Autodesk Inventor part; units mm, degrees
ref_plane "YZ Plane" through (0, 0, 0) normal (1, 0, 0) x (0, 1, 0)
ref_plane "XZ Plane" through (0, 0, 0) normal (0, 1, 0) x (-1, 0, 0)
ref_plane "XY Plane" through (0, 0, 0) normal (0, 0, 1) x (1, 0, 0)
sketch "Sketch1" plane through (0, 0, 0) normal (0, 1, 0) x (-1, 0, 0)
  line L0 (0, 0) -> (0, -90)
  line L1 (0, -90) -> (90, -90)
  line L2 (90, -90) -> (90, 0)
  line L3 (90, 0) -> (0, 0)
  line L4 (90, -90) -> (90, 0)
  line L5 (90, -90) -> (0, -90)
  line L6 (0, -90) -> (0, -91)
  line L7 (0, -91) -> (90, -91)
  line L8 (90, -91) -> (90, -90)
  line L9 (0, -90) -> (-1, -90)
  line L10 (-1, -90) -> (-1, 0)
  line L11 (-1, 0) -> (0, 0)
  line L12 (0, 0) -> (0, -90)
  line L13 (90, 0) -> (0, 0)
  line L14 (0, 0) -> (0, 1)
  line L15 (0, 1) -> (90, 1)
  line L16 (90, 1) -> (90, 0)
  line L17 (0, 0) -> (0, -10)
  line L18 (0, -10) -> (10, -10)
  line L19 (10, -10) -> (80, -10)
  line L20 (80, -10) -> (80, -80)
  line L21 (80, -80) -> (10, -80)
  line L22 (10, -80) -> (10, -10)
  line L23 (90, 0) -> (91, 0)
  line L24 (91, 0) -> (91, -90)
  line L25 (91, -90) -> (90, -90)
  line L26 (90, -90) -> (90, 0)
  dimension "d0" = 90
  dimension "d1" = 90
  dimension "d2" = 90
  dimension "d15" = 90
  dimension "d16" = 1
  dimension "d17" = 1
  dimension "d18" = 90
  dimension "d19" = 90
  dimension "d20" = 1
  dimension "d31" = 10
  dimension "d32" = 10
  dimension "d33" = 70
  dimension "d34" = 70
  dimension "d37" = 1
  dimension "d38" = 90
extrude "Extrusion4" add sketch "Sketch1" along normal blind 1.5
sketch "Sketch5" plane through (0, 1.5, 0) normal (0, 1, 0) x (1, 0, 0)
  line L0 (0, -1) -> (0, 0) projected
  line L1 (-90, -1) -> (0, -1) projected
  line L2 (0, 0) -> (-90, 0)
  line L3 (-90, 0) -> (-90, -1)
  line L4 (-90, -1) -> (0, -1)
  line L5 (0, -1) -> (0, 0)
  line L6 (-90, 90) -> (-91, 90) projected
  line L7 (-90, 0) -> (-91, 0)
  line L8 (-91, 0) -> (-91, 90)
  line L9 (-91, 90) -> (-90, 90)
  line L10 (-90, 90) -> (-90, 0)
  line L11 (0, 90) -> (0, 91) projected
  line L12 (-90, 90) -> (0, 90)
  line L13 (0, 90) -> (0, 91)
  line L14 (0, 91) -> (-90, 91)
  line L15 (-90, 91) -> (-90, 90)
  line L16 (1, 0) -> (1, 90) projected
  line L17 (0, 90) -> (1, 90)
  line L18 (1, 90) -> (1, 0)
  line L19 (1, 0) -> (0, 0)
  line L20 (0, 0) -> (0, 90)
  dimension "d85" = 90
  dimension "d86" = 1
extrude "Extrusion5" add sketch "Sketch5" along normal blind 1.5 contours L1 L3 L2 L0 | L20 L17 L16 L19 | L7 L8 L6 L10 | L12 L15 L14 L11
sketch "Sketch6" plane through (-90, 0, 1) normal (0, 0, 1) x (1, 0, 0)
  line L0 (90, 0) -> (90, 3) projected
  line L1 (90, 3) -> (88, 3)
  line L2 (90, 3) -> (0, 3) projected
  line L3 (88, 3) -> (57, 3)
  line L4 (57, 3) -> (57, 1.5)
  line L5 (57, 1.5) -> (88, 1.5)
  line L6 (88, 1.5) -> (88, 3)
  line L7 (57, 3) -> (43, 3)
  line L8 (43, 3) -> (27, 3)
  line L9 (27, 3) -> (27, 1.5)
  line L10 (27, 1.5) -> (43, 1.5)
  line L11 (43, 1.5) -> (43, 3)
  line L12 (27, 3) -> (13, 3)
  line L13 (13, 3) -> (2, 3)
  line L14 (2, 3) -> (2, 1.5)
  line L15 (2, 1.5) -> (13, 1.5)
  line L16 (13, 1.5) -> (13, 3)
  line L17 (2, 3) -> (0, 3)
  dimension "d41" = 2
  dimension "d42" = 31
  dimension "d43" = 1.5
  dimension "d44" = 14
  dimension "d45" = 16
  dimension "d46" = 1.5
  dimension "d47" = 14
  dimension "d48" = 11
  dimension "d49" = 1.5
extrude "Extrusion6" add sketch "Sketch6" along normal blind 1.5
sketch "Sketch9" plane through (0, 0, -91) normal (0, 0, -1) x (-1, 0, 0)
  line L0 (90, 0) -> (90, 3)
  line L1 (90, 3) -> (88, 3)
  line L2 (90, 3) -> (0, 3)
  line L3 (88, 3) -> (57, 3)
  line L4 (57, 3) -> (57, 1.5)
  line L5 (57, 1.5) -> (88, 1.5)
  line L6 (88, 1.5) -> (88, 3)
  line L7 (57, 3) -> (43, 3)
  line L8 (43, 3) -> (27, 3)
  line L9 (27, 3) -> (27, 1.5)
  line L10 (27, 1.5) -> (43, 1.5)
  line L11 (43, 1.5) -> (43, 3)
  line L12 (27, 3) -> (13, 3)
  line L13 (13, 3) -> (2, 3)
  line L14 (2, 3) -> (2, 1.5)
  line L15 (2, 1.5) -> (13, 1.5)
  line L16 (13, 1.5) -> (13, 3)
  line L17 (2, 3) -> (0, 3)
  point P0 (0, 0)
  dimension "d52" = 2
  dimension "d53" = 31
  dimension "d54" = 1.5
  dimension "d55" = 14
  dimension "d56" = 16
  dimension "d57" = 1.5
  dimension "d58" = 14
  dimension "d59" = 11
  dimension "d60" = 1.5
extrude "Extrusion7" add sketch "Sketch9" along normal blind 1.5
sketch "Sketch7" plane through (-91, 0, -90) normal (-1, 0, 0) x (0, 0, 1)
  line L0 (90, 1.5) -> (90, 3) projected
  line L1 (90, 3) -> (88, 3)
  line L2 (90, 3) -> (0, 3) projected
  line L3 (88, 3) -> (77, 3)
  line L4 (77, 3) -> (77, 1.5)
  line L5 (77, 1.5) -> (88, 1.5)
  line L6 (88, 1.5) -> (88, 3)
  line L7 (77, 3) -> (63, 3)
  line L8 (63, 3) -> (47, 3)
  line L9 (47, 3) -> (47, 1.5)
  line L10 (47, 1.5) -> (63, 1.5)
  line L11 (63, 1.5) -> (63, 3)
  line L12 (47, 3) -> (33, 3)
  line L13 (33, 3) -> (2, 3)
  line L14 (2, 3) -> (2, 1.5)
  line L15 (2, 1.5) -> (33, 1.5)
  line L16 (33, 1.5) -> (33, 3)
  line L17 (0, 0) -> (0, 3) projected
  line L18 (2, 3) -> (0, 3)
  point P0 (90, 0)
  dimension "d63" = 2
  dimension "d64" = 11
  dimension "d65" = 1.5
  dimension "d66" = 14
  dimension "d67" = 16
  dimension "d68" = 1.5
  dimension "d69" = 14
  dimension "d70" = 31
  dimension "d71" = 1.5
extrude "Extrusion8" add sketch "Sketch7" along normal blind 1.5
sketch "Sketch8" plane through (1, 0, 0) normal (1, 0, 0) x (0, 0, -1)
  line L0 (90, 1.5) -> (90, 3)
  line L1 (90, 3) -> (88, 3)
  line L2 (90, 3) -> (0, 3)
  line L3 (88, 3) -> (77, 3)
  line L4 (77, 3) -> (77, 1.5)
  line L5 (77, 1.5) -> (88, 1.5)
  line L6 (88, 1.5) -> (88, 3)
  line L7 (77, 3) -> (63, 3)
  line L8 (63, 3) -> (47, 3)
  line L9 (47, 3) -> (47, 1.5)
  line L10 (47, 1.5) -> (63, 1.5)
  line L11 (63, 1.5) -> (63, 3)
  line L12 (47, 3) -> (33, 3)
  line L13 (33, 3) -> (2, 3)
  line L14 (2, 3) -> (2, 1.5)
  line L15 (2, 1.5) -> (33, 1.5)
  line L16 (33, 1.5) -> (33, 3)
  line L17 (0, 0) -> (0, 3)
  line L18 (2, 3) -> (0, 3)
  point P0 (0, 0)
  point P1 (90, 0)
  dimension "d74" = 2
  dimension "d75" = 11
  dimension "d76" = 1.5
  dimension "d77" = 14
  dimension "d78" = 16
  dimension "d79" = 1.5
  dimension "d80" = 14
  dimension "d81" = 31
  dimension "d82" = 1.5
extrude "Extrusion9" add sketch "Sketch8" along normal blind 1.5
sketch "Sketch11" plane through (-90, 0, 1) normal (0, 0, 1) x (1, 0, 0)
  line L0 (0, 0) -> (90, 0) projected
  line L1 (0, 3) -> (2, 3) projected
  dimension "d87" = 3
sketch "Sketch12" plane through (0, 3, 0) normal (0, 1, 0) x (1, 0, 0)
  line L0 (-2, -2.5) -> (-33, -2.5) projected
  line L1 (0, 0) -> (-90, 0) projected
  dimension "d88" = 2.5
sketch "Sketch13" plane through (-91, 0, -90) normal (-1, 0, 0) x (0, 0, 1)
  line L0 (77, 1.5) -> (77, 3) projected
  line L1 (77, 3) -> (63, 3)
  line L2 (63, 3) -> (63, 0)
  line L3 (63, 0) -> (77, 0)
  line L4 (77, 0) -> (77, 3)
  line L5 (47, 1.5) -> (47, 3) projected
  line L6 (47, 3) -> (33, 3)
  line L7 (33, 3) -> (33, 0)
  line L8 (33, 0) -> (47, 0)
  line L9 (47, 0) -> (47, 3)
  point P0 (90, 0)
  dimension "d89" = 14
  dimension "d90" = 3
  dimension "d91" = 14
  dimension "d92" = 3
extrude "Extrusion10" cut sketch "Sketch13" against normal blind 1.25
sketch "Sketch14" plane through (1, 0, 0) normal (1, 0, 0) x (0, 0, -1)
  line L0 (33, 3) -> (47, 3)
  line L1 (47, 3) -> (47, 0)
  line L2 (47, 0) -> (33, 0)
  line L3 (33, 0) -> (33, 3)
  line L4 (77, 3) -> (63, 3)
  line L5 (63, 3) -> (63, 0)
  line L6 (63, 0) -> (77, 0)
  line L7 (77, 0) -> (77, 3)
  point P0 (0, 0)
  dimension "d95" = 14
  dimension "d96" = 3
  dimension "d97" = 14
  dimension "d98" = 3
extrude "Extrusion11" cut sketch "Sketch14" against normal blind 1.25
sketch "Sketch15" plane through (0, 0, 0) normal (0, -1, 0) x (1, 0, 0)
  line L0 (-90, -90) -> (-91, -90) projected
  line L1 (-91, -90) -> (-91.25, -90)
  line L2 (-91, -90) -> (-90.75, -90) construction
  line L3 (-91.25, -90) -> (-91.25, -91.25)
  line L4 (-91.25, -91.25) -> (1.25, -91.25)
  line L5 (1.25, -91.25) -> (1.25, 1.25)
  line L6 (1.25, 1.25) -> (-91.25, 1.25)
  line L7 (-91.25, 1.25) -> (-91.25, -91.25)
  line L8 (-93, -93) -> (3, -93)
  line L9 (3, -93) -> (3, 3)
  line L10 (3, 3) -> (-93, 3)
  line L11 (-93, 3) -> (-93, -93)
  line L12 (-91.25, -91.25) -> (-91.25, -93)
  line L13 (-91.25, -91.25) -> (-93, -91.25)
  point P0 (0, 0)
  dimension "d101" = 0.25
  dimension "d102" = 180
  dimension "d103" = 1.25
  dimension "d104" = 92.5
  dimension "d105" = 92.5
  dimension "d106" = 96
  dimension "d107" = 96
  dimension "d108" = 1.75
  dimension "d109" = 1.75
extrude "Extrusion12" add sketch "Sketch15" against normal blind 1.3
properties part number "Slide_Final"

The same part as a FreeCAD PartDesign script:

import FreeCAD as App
import Part
import Sketcher

doc = App.newDocument("Part")
params = doc.addObject("Spreadsheet::Sheet", "Params")
for row, (alias, value) in enumerate([
    ("sketch1_width", "1 mm"),
    ("sketch1_width2", "90 mm"),
    ("sketch1_width3", "70 mm"),
    ("pad1_length", "1.5 mm"),
    ("sketch2_width", "90 mm"),
    ("sketch2_width2", "1 mm"),
    ("pad2_length", "1.5 mm"),
    ("sketch3_width", "31 mm"),
    ("sketch3_width2", "11 mm"),
    ("sketch3_width3", "16 mm"),
    ("sketch3_height", "1.5 mm"),
    ("pad3_length", "1.5 mm"),
    ("sketch4_width", "31 mm"),
    ("sketch4_width2", "11 mm"),
    ("sketch4_width3", "16 mm"),
    ("sketch4_height", "1.5 mm"),
    ("pad4_length", "1.5 mm"),
    ("sketch5_height", "11 mm"),
    ("sketch5_height2", "31 mm"),
    ("sketch5_height3", "16 mm"),
    ("sketch5_width", "1.5 mm"),
    ("pad5_length", "1.5 mm"),
    ("sketch6_height", "11 mm"),
    ("sketch6_height2", "31 mm"),
    ("sketch6_height3", "16 mm"),
    ("sketch6_width", "1.5 mm"),
    ("pad6_length", "1.5 mm"),
    ("sketch7_width", "3 mm"),
    ("sketch7_height", "14 mm"),
    ("pocket1_length", "1.25 mm"),
    ("sketch8_width", "3 mm"),
    ("sketch8_height", "14 mm"),
    ("pocket2_length", "1.25 mm"),
    ("sketch9_width", "96 mm"),
    ("sketch9_width2", "92.5 mm"),
    ("pad7_length", "1.3 mm"),
], start=1):
    params.set(f"A{row}", alias)
    params.set(f"B{row}", "=" + value)
    params.setAlias(f"B{row}", alias)

body = doc.addObject("PartDesign::Body", "Body")
body.AllowCompound = True

# Sketch on XZ plane
sketch1 = body.newObject("Sketcher::SketchObject", "Sketch")
sketch1.AttachmentSupport = (doc.getObject("XZ_Plane"), [""])
sketch1.MapMode = "FlatFace"
sketch1.addGeometry(Part.LineSegment(App.Vector(0, 1, 0), App.Vector(0, 0, 0)), False)
sketch1.addGeometry(Part.LineSegment(App.Vector(0, 0, 0), App.Vector(1, 0, 0)), False)
sketch1.addGeometry(Part.LineSegment(App.Vector(1, 0, 0), App.Vector(1, -90, 0)), False)
sketch1.addGeometry(Part.LineSegment(App.Vector(1, -90, 0), App.Vector(0, -90, 0)), False)
sketch1.addGeometry(Part.LineSegment(App.Vector(0, -90, 0), App.Vector(0, -91, 0)), False)
sketch1.addGeometry(Part.LineSegment(App.Vector(0, -91, 0), App.Vector(-90, -91, 0)), False)
sketch1.addGeometry(Part.LineSegment(App.Vector(-90, -91, 0), App.Vector(-90, -90, 0)), False)
sketch1.addGeometry(Part.LineSegment(App.Vector(-90, -90, 0), App.Vector(-91, -90, 0)), False)
sketch1.addGeometry(Part.LineSegment(App.Vector(-91, -90, 0), App.Vector(-91, 0, 0)), False)
sketch1.addGeometry(Part.LineSegment(App.Vector(-91, 0, 0), App.Vector(-90, 0, 0)), False)
sketch1.addGeometry(Part.LineSegment(App.Vector(-90, 0, 0), App.Vector(-90, 1, 0)), False)
sketch1.addGeometry(Part.LineSegment(App.Vector(-90, 1, 0), App.Vector(0, 1, 0)), False)
sketch1.addGeometry(Part.LineSegment(App.Vector(-10, -80, 0), App.Vector(-10, -10, 0)), False)
sketch1.addGeometry(Part.LineSegment(App.Vector(-10, -10, 0), App.Vector(-80, -10, 0)), False)
sketch1.addGeometry(Part.LineSegment(App.Vector(-80, -10, 0), App.Vector(-80, -80, 0)), False)
sketch1.addGeometry(Part.LineSegment(App.Vector(-80, -80, 0), App.Vector(-10, -80, 0)), False)
sketch1.addConstraint(Sketcher.Constraint("Coincident", 0, 2, 1, 1))
sketch1.addConstraint(Sketcher.Constraint("Coincident", 1, 2, 2, 1))
sketch1.addConstraint(Sketcher.Constraint("Coincident", 2, 2, 3, 1))
sketch1.addConstraint(Sketcher.Constraint("Coincident", 3, 2, 4, 1))
sketch1.addConstraint(Sketcher.Constraint("Coincident", 4, 2, 5, 1))
sketch1.addConstraint(Sketcher.Constraint("Coincident", 5, 2, 6, 1))
sketch1.addConstraint(Sketcher.Constraint("Coincident", 6, 2, 7, 1))
sketch1.addConstraint(Sketcher.Constraint("Coincident", 7, 2, 8, 1))
sketch1.addConstraint(Sketcher.Constraint("Coincident", 8, 2, 9, 1))
sketch1.addConstraint(Sketcher.Constraint("Coincident", 9, 2, 10, 1))
sketch1.addConstraint(Sketcher.Constraint("Coincident", 10, 2, 11, 1))
sketch1.addConstraint(Sketcher.Constraint("Coincident", 11, 2, 0, 1))
sketch1.addConstraint(Sketcher.Constraint("Coincident", 12, 2, 13, 1))
sketch1.addConstraint(Sketcher.Constraint("Coincident", 13, 2, 14, 1))
sketch1.addConstraint(Sketcher.Constraint("Coincident", 14, 2, 15, 1))
sketch1.addConstraint(Sketcher.Constraint("Coincident", 15, 2, 12, 1))
sketch1.addConstraint(Sketcher.Constraint("Vertical", 0))
sketch1.addConstraint(Sketcher.Constraint("Horizontal", 1))
sketch1.addConstraint(Sketcher.Constraint("Vertical", 2))
sketch1.addConstraint(Sketcher.Constraint("Horizontal", 3))
sketch1.addConstraint(Sketcher.Constraint("Vertical", 4))
sketch1.addConstraint(Sketcher.Constraint("Horizontal", 5))
sketch1.addConstraint(Sketcher.Constraint("Vertical", 6))
sketch1.addConstraint(Sketcher.Constraint("Horizontal", 7))
sketch1.addConstraint(Sketcher.Constraint("Vertical", 8))
sketch1.addConstraint(Sketcher.Constraint("Horizontal", 9))
sketch1.addConstraint(Sketcher.Constraint("Vertical", 10))
sketch1.addConstraint(Sketcher.Constraint("Horizontal", 11))
sketch1.addConstraint(Sketcher.Constraint("Vertical", 12))
sketch1.addConstraint(Sketcher.Constraint("Horizontal", 13))
sketch1.addConstraint(Sketcher.Constraint("Vertical", 14))
sketch1.addConstraint(Sketcher.Constraint("Horizontal", 15))
sketch1.addConstraint(Sketcher.Constraint("Coincident", 0, 2, -1, 1))
sketch1.addConstraint(Sketcher.Constraint("PointOnObject", 3, 2, -2))
sketch1.addConstraint(Sketcher.Constraint("PointOnObject", 8, 2, -1))
sketch1.addConstraint(Sketcher.Constraint("Horizontal", 3, 2, 6, 2))
sketch1.addConstraint(Sketcher.Constraint("Vertical", 6, 2, 9, 2))
sketch1.addConstraint(Sketcher.Constraint("Equal", 3, 7))
sketch1.addConstraint(Sketcher.Constraint("Equal", 9, 0))
sketch1.addConstraint(Sketcher.Constraint("Equal", 11, 2))
sketch1.addConstraint(Sketcher.Constraint("Equal", 0, 4))
sketch1.addConstraint(Sketcher.Constraint("Equal", 15, 12))
sketch1.addConstraint(Sketcher.Constraint("DistanceX", 1, 1, 1, 2, 1.0))
sketch1.addConstraint(Sketcher.Constraint("DistanceX", 5, 2, 5, 1, 90.0))
sketch1.addConstraint(Sketcher.Constraint("DistanceX", 13, 2, 13, 1, 70.0))
sketch1.addConstraint(Sketcher.Constraint("DistanceX", 12, 2, -1, 1, 10.0))
sketch1.addConstraint(Sketcher.Constraint("DistanceY", 12, 2, -1, 1, 10.0))
sketch1.setExpression("Constraints[42]", "Params.sketch1_width")
sketch1.setExpression("Constraints[43]", "Params.sketch1_width2")
sketch1.setExpression("Constraints[44]", "Params.sketch1_width3")
pad1 = body.newObject("PartDesign::Pad", "Pad")
pad1.Profile = sketch1
pad1.setExpression("Length", "Params.pad1_length")
pad1.Reversed = True

# Sketch on XZ plane
sketch2 = body.newObject("Sketcher::SketchObject", "Sketch001")
sketch2.AttachmentSupport = (doc.getObject("XZ_Plane"), [""])
sketch2.MapMode = "FlatFace"
sketch2.AttachmentOffset = App.Placement(App.Vector(0, 0, -1.5), App.Rotation())
sketch2.addGeometry(Part.LineSegment(App.Vector(-90, 1, 0), App.Vector(0, 1, 0)), False)
sketch2.addGeometry(Part.LineSegment(App.Vector(0, 1, 0), App.Vector(0, 0, 0)), False)
sketch2.addGeometry(Part.LineSegment(App.Vector(0, 0, 0), App.Vector(-90, 0, 0)), False)
sketch2.addGeometry(Part.LineSegment(App.Vector(-90, 0, 0), App.Vector(-90, 1, 0)), False)
sketch2.addGeometry(Part.LineSegment(App.Vector(0, -90, 0), App.Vector(0, 0, 0)), False)
sketch2.addGeometry(Part.LineSegment(App.Vector(0, 0, 0), App.Vector(1, 0, 0)), False)
sketch2.addGeometry(Part.LineSegment(App.Vector(1, 0, 0), App.Vector(1, -90, 0)), False)
sketch2.addGeometry(Part.LineSegment(App.Vector(1, -90, 0), App.Vector(0, -90, 0)), False)
sketch2.addGeometry(Part.LineSegment(App.Vector(-91, 0, 0), App.Vector(-90, 0, 0)), False)
sketch2.addGeometry(Part.LineSegment(App.Vector(-90, 0, 0), App.Vector(-90, -90, 0)), False)
sketch2.addGeometry(Part.LineSegment(App.Vector(-90, -90, 0), App.Vector(-91, -90, 0)), False)
sketch2.addGeometry(Part.LineSegment(App.Vector(-91, -90, 0), App.Vector(-91, 0, 0)), False)
sketch2.addGeometry(Part.LineSegment(App.Vector(-90, -90, 0), App.Vector(0, -90, 0)), False)
sketch2.addGeometry(Part.LineSegment(App.Vector(0, -90, 0), App.Vector(0, -91, 0)), False)
sketch2.addGeometry(Part.LineSegment(App.Vector(0, -91, 0), App.Vector(-90, -91, 0)), False)
sketch2.addGeometry(Part.LineSegment(App.Vector(-90, -91, 0), App.Vector(-90, -90, 0)), False)
sketch2.addConstraint(Sketcher.Constraint("Coincident", 0, 2, 1, 1))
sketch2.addConstraint(Sketcher.Constraint("Coincident", 1, 2, 2, 1))
sketch2.addConstraint(Sketcher.Constraint("Coincident", 2, 2, 3, 1))
sketch2.addConstraint(Sketcher.Constraint("Coincident", 3, 2, 0, 1))
sketch2.addConstraint(Sketcher.Constraint("Coincident", 4, 2, 5, 1))
sketch2.addConstraint(Sketcher.Constraint("Coincident", 5, 2, 6, 1))
sketch2.addConstraint(Sketcher.Constraint("Coincident", 6, 2, 7, 1))
sketch2.addConstraint(Sketcher.Constraint("Coincident", 7, 2, 4, 1))
sketch2.addConstraint(Sketcher.Constraint("Coincident", 8, 2, 9, 1))
sketch2.addConstraint(Sketcher.Constraint("Coincident", 9, 2, 10, 1))
sketch2.addConstraint(Sketcher.Constraint("Coincident", 10, 2, 11, 1))
sketch2.addConstraint(Sketcher.Constraint("Coincident", 11, 2, 8, 1))
sketch2.addConstraint(Sketcher.Constraint("Coincident", 12, 2, 13, 1))
sketch2.addConstraint(Sketcher.Constraint("Coincident", 13, 2, 14, 1))
sketch2.addConstraint(Sketcher.Constraint("Coincident", 14, 2, 15, 1))
sketch2.addConstraint(Sketcher.Constraint("Coincident", 15, 2, 12, 1))
sketch2.addConstraint(Sketcher.Constraint("Horizontal", 0))
sketch2.addConstraint(Sketcher.Constraint("Vertical", 1))
sketch2.addConstraint(Sketcher.Constraint("Horizontal", 2))
sketch2.addConstraint(Sketcher.Constraint("Vertical", 3))
sketch2.addConstraint(Sketcher.Constraint("Vertical", 4))
sketch2.addConstraint(Sketcher.Constraint("Horizontal", 5))
sketch2.addConstraint(Sketcher.Constraint("Vertical", 6))
sketch2.addConstraint(Sketcher.Constraint("Horizontal", 7))
sketch2.addConstraint(Sketcher.Constraint("Horizontal", 8))
sketch2.addConstraint(Sketcher.Constraint("Vertical", 9))
sketch2.addConstraint(Sketcher.Constraint("Horizontal", 10))
sketch2.addConstraint(Sketcher.Constraint("Vertical", 11))
sketch2.addConstraint(Sketcher.Constraint("Horizontal", 12))
sketch2.addConstraint(Sketcher.Constraint("Vertical", 13))
sketch2.addConstraint(Sketcher.Constraint("Horizontal", 14))
sketch2.addConstraint(Sketcher.Constraint("Vertical", 15))
sketch2.addConstraint(Sketcher.Constraint("Coincident", 1, 2, -1, 1))
sketch2.addConstraint(Sketcher.Constraint("Coincident", 4, 2, -1, 1))
sketch2.addConstraint(Sketcher.Constraint("Coincident", 8, 2, 2, 2))
sketch2.addConstraint(Sketcher.Constraint("Coincident", 12, 2, 7, 2))
sketch2.addConstraint(Sketcher.Constraint("Coincident", 15, 2, 9, 2))
sketch2.addConstraint(Sketcher.Constraint("Equal", 7, 8))
sketch2.addConstraint(Sketcher.Constraint("Equal", 10, 1))
sketch2.addConstraint(Sketcher.Constraint("Equal", 14, 4))
sketch2.addConstraint(Sketcher.Constraint("Equal", 3, 13))
sketch2.addConstraint(Sketcher.Constraint("DistanceX", 0, 1, 0, 2, 90.0))
sketch2.addConstraint(Sketcher.Constraint("DistanceX", 5, 1, 5, 2, 1.0))
sketch2.setExpression("Constraints[41]", "Params.sketch2_width")
sketch2.setExpression("Constraints[42]", "Params.sketch2_width2")
pad2 = body.newObject("PartDesign::Pad", "Pad001")
pad2.Profile = sketch2
pad2.setExpression("Length", "Params.pad2_length")
pad2.Reversed = True

# Sketch on XY plane
sketch3 = body.newObject("Sketcher::SketchObject", "Sketch002")
sketch3.AttachmentSupport = (doc.getObject("XY_Plane"), [""])
sketch3.MapMode = "FlatFace"
sketch3.AttachmentOffset = App.Placement(App.Vector(0, 0, 1), App.Rotation())
sketch3.addGeometry(Part.LineSegment(App.Vector(-2, 1.5, 0), App.Vector(-2, 3, 0)), False)
sketch3.addGeometry(Part.LineSegment(App.Vector(-2, 3, 0), App.Vector(-33, 3, 0)), False)
sketch3.addGeometry(Part.LineSegment(App.Vector(-33, 3, 0), App.Vector(-33, 1.5, 0)), False)
sketch3.addGeometry(Part.LineSegment(App.Vector(-33, 1.5, 0), App.Vector(-2, 1.5, 0)), False)
sketch3.addGeometry(Part.LineSegment(App.Vector(-77, 1.5, 0), App.Vector(-77, 3, 0)), False)
sketch3.addGeometry(Part.LineSegment(App.Vector(-77, 3, 0), App.Vector(-88, 3, 0)), False)
sketch3.addGeometry(Part.LineSegment(App.Vector(-88, 3, 0), App.Vector(-88, 1.5, 0)), False)
sketch3.addGeometry(Part.LineSegment(App.Vector(-88, 1.5, 0), App.Vector(-77, 1.5, 0)), False)
sketch3.addGeometry(Part.LineSegment(App.Vector(-47, 1.5, 0), App.Vector(-47, 3, 0)), False)
sketch3.addGeometry(Part.LineSegment(App.Vector(-47, 3, 0), App.Vector(-63, 3, 0)), False)
sketch3.addGeometry(Part.LineSegment(App.Vector(-63, 3, 0), App.Vector(-63, 1.5, 0)), False)
sketch3.addGeometry(Part.LineSegment(App.Vector(-63, 1.5, 0), App.Vector(-47, 1.5, 0)), False)
sketch3.addConstraint(Sketcher.Constraint("Coincident", 0, 2, 1, 1))
sketch3.addConstraint(Sketcher.Constraint("Coincident", 1, 2, 2, 1))
sketch3.addConstraint(Sketcher.Constraint("Coincident", 2, 2, 3, 1))
sketch3.addConstraint(Sketcher.Constraint("Coincident", 3, 2, 0, 1))
sketch3.addConstraint(Sketcher.Constraint("Coincident", 4, 2, 5, 1))
sketch3.addConstraint(Sketcher.Constraint("Coincident", 5, 2, 6, 1))
sketch3.addConstraint(Sketcher.Constraint("Coincident", 6, 2, 7, 1))
sketch3.addConstraint(Sketcher.Constraint("Coincident", 7, 2, 4, 1))
sketch3.addConstraint(Sketcher.Constraint("Coincident", 8, 2, 9, 1))
sketch3.addConstraint(Sketcher.Constraint("Coincident", 9, 2, 10, 1))
sketch3.addConstraint(Sketcher.Constraint("Coincident", 10, 2, 11, 1))
sketch3.addConstraint(Sketcher.Constraint("Coincident", 11, 2, 8, 1))
sketch3.addConstraint(Sketcher.Constraint("Vertical", 0))
sketch3.addConstraint(Sketcher.Constraint("Horizontal", 1))
sketch3.addConstraint(Sketcher.Constraint("Vertical", 2))
sketch3.addConstraint(Sketcher.Constraint("Horizontal", 3))
sketch3.addConstraint(Sketcher.Constraint("Vertical", 4))
sketch3.addConstraint(Sketcher.Constraint("Horizontal", 5))
sketch3.addConstraint(Sketcher.Constraint("Vertical", 6))
sketch3.addConstraint(Sketcher.Constraint("Horizontal", 7))
sketch3.addConstraint(Sketcher.Constraint("Vertical", 8))
sketch3.addConstraint(Sketcher.Constraint("Horizontal", 9))
sketch3.addConstraint(Sketcher.Constraint("Vertical", 10))
sketch3.addConstraint(Sketcher.Constraint("Horizontal", 11))
sketch3.addConstraint(Sketcher.Constraint("Horizontal", 1, 2, 4, 2))
sketch3.addConstraint(Sketcher.Constraint("Horizontal", 3, 2, 6, 2))
sketch3.addConstraint(Sketcher.Constraint("Horizontal", 5, 2, 8, 2))
sketch3.addConstraint(Sketcher.Constraint("Horizontal", 7, 2, 10, 2))
sketch3.addConstraint(Sketcher.Constraint("DistanceX", 1, 2, 1, 1, 31.0))
sketch3.addConstraint(Sketcher.Constraint("DistanceX", 5, 2, 5, 1, 11.0))
sketch3.addConstraint(Sketcher.Constraint("DistanceX", 9, 2, 9, 1, 16.0))
sketch3.addConstraint(Sketcher.Constraint("DistanceY", 0, 1, 0, 2, 1.5))
sketch3.addConstraint(Sketcher.Constraint("DistanceX", 0, 2, -1, 1, 2.0))
sketch3.addConstraint(Sketcher.Constraint("DistanceX", 8, 2, 1, 2, 14.0))
sketch3.addConstraint(Sketcher.Constraint("DistanceX", 4, 2, 9, 2, 14.0))
sketch3.addConstraint(Sketcher.Constraint("DistanceY", -1, 1, 2, 2, 1.5))
sketch3.setExpression("Constraints[28]", "Params.sketch3_width")
sketch3.setExpression("Constraints[29]", "Params.sketch3_width2")
sketch3.setExpression("Constraints[30]", "Params.sketch3_width3")
sketch3.setExpression("Constraints[31]", "Params.sketch3_height")
pad3 = body.newObject("PartDesign::Pad", "Pad002")
pad3.Profile = sketch3
pad3.setExpression("Length", "Params.pad3_length")

# Sketch on XY plane
sketch4 = body.newObject("Sketcher::SketchObject", "Sketch003")
sketch4.AttachmentSupport = (doc.getObject("XY_Plane"), [""])
sketch4.MapMode = "FlatFace"
sketch4.AttachmentOffset = App.Placement(App.Vector(0, 0, -91), App.Rotation())
sketch4.addGeometry(Part.LineSegment(App.Vector(-88, 1.5, 0), App.Vector(-88, 3, 0)), False)
sketch4.addGeometry(Part.LineSegment(App.Vector(-88, 3, 0), App.Vector(-57, 3, 0)), False)
sketch4.addGeometry(Part.LineSegment(App.Vector(-57, 3, 0), App.Vector(-57, 1.5, 0)), False)
sketch4.addGeometry(Part.LineSegment(App.Vector(-57, 1.5, 0), App.Vector(-88, 1.5, 0)), False)
sketch4.addGeometry(Part.LineSegment(App.Vector(-13, 1.5, 0), App.Vector(-13, 3, 0)), False)
sketch4.addGeometry(Part.LineSegment(App.Vector(-13, 3, 0), App.Vector(-2, 3, 0)), False)
sketch4.addGeometry(Part.LineSegment(App.Vector(-2, 3, 0), App.Vector(-2, 1.5, 0)), False)
sketch4.addGeometry(Part.LineSegment(App.Vector(-2, 1.5, 0), App.Vector(-13, 1.5, 0)), False)
sketch4.addGeometry(Part.LineSegment(App.Vector(-43, 1.5, 0), App.Vector(-43, 3, 0)), False)
sketch4.addGeometry(Part.LineSegment(App.Vector(-43, 3, 0), App.Vector(-27, 3, 0)), False)
sketch4.addGeometry(Part.LineSegment(App.Vector(-27, 3, 0), App.Vector(-27, 1.5, 0)), False)
sketch4.addGeometry(Part.LineSegment(App.Vector(-27, 1.5, 0), App.Vector(-43, 1.5, 0)), False)
sketch4.addConstraint(Sketcher.Constraint("Coincident", 0, 2, 1, 1))
sketch4.addConstraint(Sketcher.Constraint("Coincident", 1, 2, 2, 1))
sketch4.addConstraint(Sketcher.Constraint("Coincident", 2, 2, 3, 1))
sketch4.addConstraint(Sketcher.Constraint("Coincident", 3, 2, 0, 1))
sketch4.addConstraint(Sketcher.Constraint("Coincident", 4, 2, 5, 1))
sketch4.addConstraint(Sketcher.Constraint("Coincident", 5, 2, 6, 1))
sketch4.addConstraint(Sketcher.Constraint("Coincident", 6, 2, 7, 1))
sketch4.addConstraint(Sketcher.Constraint("Coincident", 7, 2, 4, 1))
sketch4.addConstraint(Sketcher.Constraint("Coincident", 8, 2, 9, 1))
sketch4.addConstraint(Sketcher.Constraint("Coincident", 9, 2, 10, 1))
sketch4.addConstraint(Sketcher.Constraint("Coincident", 10, 2, 11, 1))
sketch4.addConstraint(Sketcher.Constraint("Coincident", 11, 2, 8, 1))
sketch4.addConstraint(Sketcher.Constraint("Vertical", 0))
sketch4.addConstraint(Sketcher.Constraint("Horizontal", 1))
sketch4.addConstraint(Sketcher.Constraint("Vertical", 2))
sketch4.addConstraint(Sketcher.Constraint("Horizontal", 3))
sketch4.addConstraint(Sketcher.Constraint("Vertical", 4))
sketch4.addConstraint(Sketcher.Constraint("Horizontal", 5))
sketch4.addConstraint(Sketcher.Constraint("Vertical", 6))
sketch4.addConstraint(Sketcher.Constraint("Horizontal", 7))
sketch4.addConstraint(Sketcher.Constraint("Vertical", 8))
sketch4.addConstraint(Sketcher.Constraint("Horizontal", 9))
sketch4.addConstraint(Sketcher.Constraint("Vertical", 10))
sketch4.addConstraint(Sketcher.Constraint("Horizontal", 11))
sketch4.addConstraint(Sketcher.Constraint("Horizontal", 1, 2, 4, 2))
sketch4.addConstraint(Sketcher.Constraint("Horizontal", 3, 2, 6, 2))
sketch4.addConstraint(Sketcher.Constraint("Horizontal", 5, 2, 8, 2))
sketch4.addConstraint(Sketcher.Constraint("Horizontal", 7, 2, 10, 2))
sketch4.addConstraint(Sketcher.Constraint("DistanceX", 1, 1, 1, 2, 31.0))
sketch4.addConstraint(Sketcher.Constraint("DistanceX", 5, 1, 5, 2, 11.0))
sketch4.addConstraint(Sketcher.Constraint("DistanceX", 9, 1, 9, 2, 16.0))
sketch4.addConstraint(Sketcher.Constraint("DistanceY", 0, 1, 0, 2, 1.5))
sketch4.addConstraint(Sketcher.Constraint("DistanceX", 5, 2, -1, 1, 2.0))
sketch4.addConstraint(Sketcher.Constraint("DistanceX", 1, 2, 8, 2, 14.0))
sketch4.addConstraint(Sketcher.Constraint("DistanceX", 9, 2, 4, 2, 14.0))
sketch4.addConstraint(Sketcher.Constraint("DistanceY", -1, 1, 2, 2, 1.5))
sketch4.setExpression("Constraints[28]", "Params.sketch4_width")
sketch4.setExpression("Constraints[29]", "Params.sketch4_width2")
sketch4.setExpression("Constraints[30]", "Params.sketch4_width3")
sketch4.setExpression("Constraints[31]", "Params.sketch4_height")
pad4 = body.newObject("PartDesign::Pad", "Pad003")
pad4.Profile = sketch4
pad4.setExpression("Length", "Params.pad4_length")
pad4.Reversed = True

# Sketch on YZ plane
sketch5 = body.newObject("Sketcher::SketchObject", "Sketch004")
sketch5.AttachmentSupport = (doc.getObject("YZ_Plane"), [""])
sketch5.MapMode = "FlatFace"
sketch5.AttachmentOffset = App.Placement(App.Vector(0, 0, -91), App.Rotation())
sketch5.addGeometry(Part.LineSegment(App.Vector(1.5, -2, 0), App.Vector(3, -2, 0)), False)
sketch5.addGeometry(Part.LineSegment(App.Vector(3, -2, 0), App.Vector(3, -13, 0)), False)
sketch5.addGeometry(Part.LineSegment(App.Vector(3, -13, 0), App.Vector(1.5, -13, 0)), False)
sketch5.addGeometry(Part.LineSegment(App.Vector(1.5, -13, 0), App.Vector(1.5, -2, 0)), False)
sketch5.addGeometry(Part.LineSegment(App.Vector(1.5, -57, 0), App.Vector(3, -57, 0)), False)
sketch5.addGeometry(Part.LineSegment(App.Vector(3, -57, 0), App.Vector(3, -88, 0)), False)
sketch5.addGeometry(Part.LineSegment(App.Vector(3, -88, 0), App.Vector(1.5, -88, 0)), False)
sketch5.addGeometry(Part.LineSegment(App.Vector(1.5, -88, 0), App.Vector(1.5, -57, 0)), False)
sketch5.addGeometry(Part.LineSegment(App.Vector(1.5, -27, 0), App.Vector(3, -27, 0)), False)
sketch5.addGeometry(Part.LineSegment(App.Vector(3, -27, 0), App.Vector(3, -43, 0)), False)
sketch5.addGeometry(Part.LineSegment(App.Vector(3, -43, 0), App.Vector(1.5, -43, 0)), False)
sketch5.addGeometry(Part.LineSegment(App.Vector(1.5, -43, 0), App.Vector(1.5, -27, 0)), False)
sketch5.addConstraint(Sketcher.Constraint("Coincident", 0, 2, 1, 1))
sketch5.addConstraint(Sketcher.Constraint("Coincident", 1, 2, 2, 1))
sketch5.addConstraint(Sketcher.Constraint("Coincident", 2, 2, 3, 1))
sketch5.addConstraint(Sketcher.Constraint("Coincident", 3, 2, 0, 1))
sketch5.addConstraint(Sketcher.Constraint("Coincident", 4, 2, 5, 1))
sketch5.addConstraint(Sketcher.Constraint("Coincident", 5, 2, 6, 1))
sketch5.addConstraint(Sketcher.Constraint("Coincident", 6, 2, 7, 1))
sketch5.addConstraint(Sketcher.Constraint("Coincident", 7, 2, 4, 1))
sketch5.addConstraint(Sketcher.Constraint("Coincident", 8, 2, 9, 1))
sketch5.addConstraint(Sketcher.Constraint("Coincident", 9, 2, 10, 1))
sketch5.addConstraint(Sketcher.Constraint("Coincident", 10, 2, 11, 1))
sketch5.addConstraint(Sketcher.Constraint("Coincident", 11, 2, 8, 1))
sketch5.addConstraint(Sketcher.Constraint("Horizontal", 0))
sketch5.addConstraint(Sketcher.Constraint("Vertical", 1))
sketch5.addConstraint(Sketcher.Constraint("Horizontal", 2))
sketch5.addConstraint(Sketcher.Constraint("Vertical", 3))
sketch5.addConstraint(Sketcher.Constraint("Horizontal", 4))
sketch5.addConstraint(Sketcher.Constraint("Vertical", 5))
sketch5.addConstraint(Sketcher.Constraint("Horizontal", 6))
sketch5.addConstraint(Sketcher.Constraint("Vertical", 7))
sketch5.addConstraint(Sketcher.Constraint("Horizontal", 8))
sketch5.addConstraint(Sketcher.Constraint("Vertical", 9))
sketch5.addConstraint(Sketcher.Constraint("Horizontal", 10))
sketch5.addConstraint(Sketcher.Constraint("Vertical", 11))
sketch5.addConstraint(Sketcher.Constraint("Vertical", 1, 2, 4, 2))
sketch5.addConstraint(Sketcher.Constraint("Vertical", 3, 2, 6, 2))
sketch5.addConstraint(Sketcher.Constraint("Vertical", 5, 2, 8, 2))
sketch5.addConstraint(Sketcher.Constraint("Vertical", 7, 2, 10, 2))
sketch5.addConstraint(Sketcher.Constraint("DistanceY", 1, 2, 1, 1, 11.0))
sketch5.addConstraint(Sketcher.Constraint("DistanceY", 5, 2, 5, 1, 31.0))
sketch5.addConstraint(Sketcher.Constraint("DistanceY", 9, 2, 9, 1, 16.0))
sketch5.addConstraint(Sketcher.Constraint("DistanceX", 0, 1, 0, 2, 1.5))
sketch5.addConstraint(Sketcher.Constraint("DistanceY", 0, 2, -1, 1, 2.0))
sketch5.addConstraint(Sketcher.Constraint("DistanceY", 8, 2, 1, 2, 14.0))
sketch5.addConstraint(Sketcher.Constraint("DistanceY", 4, 2, 9, 2, 14.0))
sketch5.addConstraint(Sketcher.Constraint("DistanceX", -1, 1, 2, 2, 1.5))
sketch5.setExpression("Constraints[28]", "Params.sketch5_height")
sketch5.setExpression("Constraints[29]", "Params.sketch5_height2")
sketch5.setExpression("Constraints[30]", "Params.sketch5_height3")
sketch5.setExpression("Constraints[31]", "Params.sketch5_width")
pad5 = body.newObject("PartDesign::Pad", "Pad004")
pad5.Profile = sketch5
pad5.setExpression("Length", "Params.pad5_length")
pad5.Reversed = True

# Sketch on YZ plane
sketch6 = body.newObject("Sketcher::SketchObject", "Sketch005")
sketch6.AttachmentSupport = (doc.getObject("YZ_Plane"), [""])
sketch6.MapMode = "FlatFace"
sketch6.AttachmentOffset = App.Placement(App.Vector(0, 0, 1), App.Rotation())
sketch6.addGeometry(Part.LineSegment(App.Vector(1.5, -88, 0), App.Vector(3, -88, 0)), False)
sketch6.addGeometry(Part.LineSegment(App.Vector(3, -88, 0), App.Vector(3, -77, 0)), False)
sketch6.addGeometry(Part.LineSegment(App.Vector(3, -77, 0), App.Vector(1.5, -77, 0)), False)
sketch6.addGeometry(Part.LineSegment(App.Vector(1.5, -77, 0), App.Vector(1.5, -88, 0)), False)
sketch6.addGeometry(Part.LineSegment(App.Vector(1.5, -33, 0), App.Vector(3, -33, 0)), False)
sketch6.addGeometry(Part.LineSegment(App.Vector(3, -33, 0), App.Vector(3, -2, 0)), False)
sketch6.addGeometry(Part.LineSegment(App.Vector(3, -2, 0), App.Vector(1.5, -2, 0)), False)
sketch6.addGeometry(Part.LineSegment(App.Vector(1.5, -2, 0), App.Vector(1.5, -33, 0)), False)
sketch6.addGeometry(Part.LineSegment(App.Vector(1.5, -63, 0), App.Vector(3, -63, 0)), False)
sketch6.addGeometry(Part.LineSegment(App.Vector(3, -63, 0), App.Vector(3, -47, 0)), False)
sketch6.addGeometry(Part.LineSegment(App.Vector(3, -47, 0), App.Vector(1.5, -47, 0)), False)
sketch6.addGeometry(Part.LineSegment(App.Vector(1.5, -47, 0), App.Vector(1.5, -63, 0)), False)
sketch6.addConstraint(Sketcher.Constraint("Coincident", 0, 2, 1, 1))
sketch6.addConstraint(Sketcher.Constraint("Coincident", 1, 2, 2, 1))
sketch6.addConstraint(Sketcher.Constraint("Coincident", 2, 2, 3, 1))
sketch6.addConstraint(Sketcher.Constraint("Coincident", 3, 2, 0, 1))
sketch6.addConstraint(Sketcher.Constraint("Coincident", 4, 2, 5, 1))
sketch6.addConstraint(Sketcher.Constraint("Coincident", 5, 2, 6, 1))
sketch6.addConstraint(Sketcher.Constraint("Coincident", 6, 2, 7, 1))
sketch6.addConstraint(Sketcher.Constraint("Coincident", 7, 2, 4, 1))
sketch6.addConstraint(Sketcher.Constraint("Coincident", 8, 2, 9, 1))
sketch6.addConstraint(Sketcher.Constraint("Coincident", 9, 2, 10, 1))
sketch6.addConstraint(Sketcher.Constraint("Coincident", 10, 2, 11, 1))
sketch6.addConstraint(Sketcher.Constraint("Coincident", 11, 2, 8, 1))
sketch6.addConstraint(Sketcher.Constraint("Horizontal", 0))
sketch6.addConstraint(Sketcher.Constraint("Vertical", 1))
sketch6.addConstraint(Sketcher.Constraint("Horizontal", 2))
sketch6.addConstraint(Sketcher.Constraint("Vertical", 3))
sketch6.addConstraint(Sketcher.Constraint("Horizontal", 4))
sketch6.addConstraint(Sketcher.Constraint("Vertical", 5))
sketch6.addConstraint(Sketcher.Constraint("Horizontal", 6))
sketch6.addConstraint(Sketcher.Constraint("Vertical", 7))
sketch6.addConstraint(Sketcher.Constraint("Horizontal", 8))
sketch6.addConstraint(Sketcher.Constraint("Vertical", 9))
sketch6.addConstraint(Sketcher.Constraint("Horizontal", 10))
sketch6.addConstraint(Sketcher.Constraint("Vertical", 11))
sketch6.addConstraint(Sketcher.Constraint("Vertical", 1, 2, 4, 2))
sketch6.addConstraint(Sketcher.Constraint("Vertical", 3, 2, 6, 2))
sketch6.addConstraint(Sketcher.Constraint("Vertical", 5, 2, 8, 2))
sketch6.addConstraint(Sketcher.Constraint("Vertical", 7, 2, 10, 2))
sketch6.addConstraint(Sketcher.Constraint("DistanceY", 1, 1, 1, 2, 11.0))
sketch6.addConstraint(Sketcher.Constraint("DistanceY", 5, 1, 5, 2, 31.0))
sketch6.addConstraint(Sketcher.Constraint("DistanceY", 9, 1, 9, 2, 16.0))
sketch6.addConstraint(Sketcher.Constraint("DistanceX", 0, 1, 0, 2, 1.5))
sketch6.addConstraint(Sketcher.Constraint("DistanceY", 5, 2, -1, 1, 2.0))
sketch6.addConstraint(Sketcher.Constraint("DistanceY", 1, 2, 8, 2, 14.0))
sketch6.addConstraint(Sketcher.Constraint("DistanceY", 9, 2, 4, 2, 14.0))
sketch6.addConstraint(Sketcher.Constraint("DistanceX", -1, 1, 2, 2, 1.5))
sketch6.setExpression("Constraints[28]", "Params.sketch6_height")
sketch6.setExpression("Constraints[29]", "Params.sketch6_height2")
sketch6.setExpression("Constraints[30]", "Params.sketch6_height3")
sketch6.setExpression("Constraints[31]", "Params.sketch6_width")
pad6 = body.newObject("PartDesign::Pad", "Pad005")
pad6.Profile = sketch6
pad6.setExpression("Length", "Params.pad6_length")

# Sketch on YZ plane
sketch7 = body.newObject("Sketcher::SketchObject", "Sketch006")
sketch7.AttachmentSupport = (doc.getObject("YZ_Plane"), [""])
sketch7.MapMode = "FlatFace"
sketch7.AttachmentOffset = App.Placement(App.Vector(0, 0, -91), App.Rotation())
sketch7.addGeometry(Part.LineSegment(App.Vector(0, -13, 0), App.Vector(3, -13, 0)), False)
sketch7.addGeometry(Part.LineSegment(App.Vector(3, -13, 0), App.Vector(3, -27, 0)), False)
sketch7.addGeometry(Part.LineSegment(App.Vector(3, -27, 0), App.Vector(0, -27, 0)), False)
sketch7.addGeometry(Part.LineSegment(App.Vector(0, -27, 0), App.Vector(0, -13, 0)), False)
sketch7.addGeometry(Part.LineSegment(App.Vector(0, -43, 0), App.Vector(3, -43, 0)), False)
sketch7.addGeometry(Part.LineSegment(App.Vector(3, -43, 0), App.Vector(3, -57, 0)), False)
sketch7.addGeometry(Part.LineSegment(App.Vector(3, -57, 0), App.Vector(0, -57, 0)), False)
sketch7.addGeometry(Part.LineSegment(App.Vector(0, -57, 0), App.Vector(0, -43, 0)), False)
sketch7.addConstraint(Sketcher.Constraint("Coincident", 0, 2, 1, 1))
sketch7.addConstraint(Sketcher.Constraint("Coincident", 1, 2, 2, 1))
sketch7.addConstraint(Sketcher.Constraint("Coincident", 2, 2, 3, 1))
sketch7.addConstraint(Sketcher.Constraint("Coincident", 3, 2, 0, 1))
sketch7.addConstraint(Sketcher.Constraint("Coincident", 4, 2, 5, 1))
sketch7.addConstraint(Sketcher.Constraint("Coincident", 5, 2, 6, 1))
sketch7.addConstraint(Sketcher.Constraint("Coincident", 6, 2, 7, 1))
sketch7.addConstraint(Sketcher.Constraint("Coincident", 7, 2, 4, 1))
sketch7.addConstraint(Sketcher.Constraint("Horizontal", 0))
sketch7.addConstraint(Sketcher.Constraint("Vertical", 1))
sketch7.addConstraint(Sketcher.Constraint("Horizontal", 2))
sketch7.addConstraint(Sketcher.Constraint("Vertical", 3))
sketch7.addConstraint(Sketcher.Constraint("Horizontal", 4))
sketch7.addConstraint(Sketcher.Constraint("Vertical", 5))
sketch7.addConstraint(Sketcher.Constraint("Horizontal", 6))
sketch7.addConstraint(Sketcher.Constraint("Vertical", 7))
sketch7.addConstraint(Sketcher.Constraint("PointOnObject", 2, 2, -2))
sketch7.addConstraint(Sketcher.Constraint("PointOnObject", 6, 2, -2))
sketch7.addConstraint(Sketcher.Constraint("Vertical", 1, 2, 4, 2))
sketch7.addConstraint(Sketcher.Constraint("Equal", 3, 5))
sketch7.addConstraint(Sketcher.Constraint("DistanceX", 0, 1, 0, 2, 3.0))
sketch7.addConstraint(Sketcher.Constraint("DistanceY", 1, 2, 1, 1, 14.0))
sketch7.addConstraint(Sketcher.Constraint("DistanceY", 0, 2, -1, 1, 13.0))
sketch7.addConstraint(Sketcher.Constraint("DistanceY", 4, 2, -1, 1, 43.0))
sketch7.setExpression("Constraints[20]", "Params.sketch7_width")
sketch7.setExpression("Constraints[21]", "Params.sketch7_height")
pocket1 = body.newObject("PartDesign::Pocket", "Pocket")
pocket1.Profile = sketch7
pocket1.setExpression("Length", "Params.pocket1_length")
pocket1.Reversed = True

# Sketch on YZ plane
sketch8 = body.newObject("Sketcher::SketchObject", "Sketch007")
sketch8.AttachmentSupport = (doc.getObject("YZ_Plane"), [""])
sketch8.MapMode = "FlatFace"
sketch8.AttachmentOffset = App.Placement(App.Vector(0, 0, 1), App.Rotation())
sketch8.addGeometry(Part.LineSegment(App.Vector(3, -47, 0), App.Vector(3, -33, 0)), False)
sketch8.addGeometry(Part.LineSegment(App.Vector(3, -33, 0), App.Vector(0, -33, 0)), False)
sketch8.addGeometry(Part.LineSegment(App.Vector(0, -33, 0), App.Vector(0, -47, 0)), False)
sketch8.addGeometry(Part.LineSegment(App.Vector(0, -47, 0), App.Vector(3, -47, 0)), False)
sketch8.addGeometry(Part.LineSegment(App.Vector(0, -77, 0), App.Vector(3, -77, 0)), False)
sketch8.addGeometry(Part.LineSegment(App.Vector(3, -77, 0), App.Vector(3, -63, 0)), False)
sketch8.addGeometry(Part.LineSegment(App.Vector(3, -63, 0), App.Vector(0, -63, 0)), False)
sketch8.addGeometry(Part.LineSegment(App.Vector(0, -63, 0), App.Vector(0, -77, 0)), False)
sketch8.addConstraint(Sketcher.Constraint("Coincident", 0, 2, 1, 1))
sketch8.addConstraint(Sketcher.Constraint("Coincident", 1, 2, 2, 1))
sketch8.addConstraint(Sketcher.Constraint("Coincident", 2, 2, 3, 1))
sketch8.addConstraint(Sketcher.Constraint("Coincident", 3, 2, 0, 1))
sketch8.addConstraint(Sketcher.Constraint("Coincident", 4, 2, 5, 1))
sketch8.addConstraint(Sketcher.Constraint("Coincident", 5, 2, 6, 1))
sketch8.addConstraint(Sketcher.Constraint("Coincident", 6, 2, 7, 1))
sketch8.addConstraint(Sketcher.Constraint("Coincident", 7, 2, 4, 1))
sketch8.addConstraint(Sketcher.Constraint("Vertical", 0))
sketch8.addConstraint(Sketcher.Constraint("Horizontal", 1))
sketch8.addConstraint(Sketcher.Constraint("Vertical", 2))
sketch8.addConstraint(Sketcher.Constraint("Horizontal", 3))
sketch8.addConstraint(Sketcher.Constraint("Horizontal", 4))
sketch8.addConstraint(Sketcher.Constraint("Vertical", 5))
sketch8.addConstraint(Sketcher.Constraint("Horizontal", 6))
sketch8.addConstraint(Sketcher.Constraint("Vertical", 7))
sketch8.addConstraint(Sketcher.Constraint("PointOnObject", 1, 2, -2))
sketch8.addConstraint(Sketcher.Constraint("PointOnObject", 6, 2, -2))
sketch8.addConstraint(Sketcher.Constraint("Vertical", 3, 2, 4, 2))
sketch8.addConstraint(Sketcher.Constraint("Equal", 2, 5))
sketch8.addConstraint(Sketcher.Constraint("DistanceX", 1, 2, 1, 1, 3.0))
sketch8.addConstraint(Sketcher.Constraint("DistanceY", 0, 1, 0, 2, 14.0))
sketch8.addConstraint(Sketcher.Constraint("DistanceY", 0, 2, -1, 1, 33.0))
sketch8.addConstraint(Sketcher.Constraint("DistanceY", 4, 2, -1, 1, 77.0))
sketch8.setExpression("Constraints[20]", "Params.sketch8_width")
sketch8.setExpression("Constraints[21]", "Params.sketch8_height")
pocket2 = body.newObject("PartDesign::Pocket", "Pocket001")
pocket2.Profile = sketch8
pocket2.setExpression("Length", "Params.pocket2_length")

# Sketch on XZ plane
sketch9 = body.newObject("Sketcher::SketchObject", "Sketch008")
sketch9.AttachmentSupport = (doc.getObject("XZ_Plane"), [""])
sketch9.MapMode = "FlatFace"
sketch9.addGeometry(Part.LineSegment(App.Vector(-93, 3, 0), App.Vector(-93, -93, 0)), False)
sketch9.addGeometry(Part.LineSegment(App.Vector(-93, -93, 0), App.Vector(3, -93, 0)), False)
sketch9.addGeometry(Part.LineSegment(App.Vector(3, -93, 0), App.Vector(3, 3, 0)), False)
sketch9.addGeometry(Part.LineSegment(App.Vector(3, 3, 0), App.Vector(-93, 3, 0)), False)
sketch9.addGeometry(Part.LineSegment(App.Vector(-91, -91, 0), App.Vector(-91, 1, 0)), False)
sketch9.addGeometry(Part.LineSegment(App.Vector(-91, 1, 0), App.Vector(1, 1, 0)), False)
sketch9.addGeometry(Part.LineSegment(App.Vector(1, 1, 0), App.Vector(1, -91, 0)), False)
sketch9.addGeometry(Part.LineSegment(App.Vector(1, -91, 0), App.Vector(-91, -91, 0)), False)
sketch9.addConstraint(Sketcher.Constraint("Coincident", 0, 2, 1, 1))
sketch9.addConstraint(Sketcher.Constraint("Coincident", 1, 2, 2, 1))
sketch9.addConstraint(Sketcher.Constraint("Coincident", 2, 2, 3, 1))
sketch9.addConstraint(Sketcher.Constraint("Coincident", 3, 2, 0, 1))
sketch9.addConstraint(Sketcher.Constraint("Coincident", 4, 2, 5, 1))
sketch9.addConstraint(Sketcher.Constraint("Coincident", 5, 2, 6, 1))
sketch9.addConstraint(Sketcher.Constraint("Coincident", 6, 2, 7, 1))
sketch9.addConstraint(Sketcher.Constraint("Coincident", 7, 2, 4, 1))
sketch9.addConstraint(Sketcher.Constraint("Vertical", 0))
sketch9.addConstraint(Sketcher.Constraint("Horizontal", 1))
sketch9.addConstraint(Sketcher.Constraint("Vertical", 2))
sketch9.addConstraint(Sketcher.Constraint("Horizontal", 3))
sketch9.addConstraint(Sketcher.Constraint("Vertical", 4))
sketch9.addConstraint(Sketcher.Constraint("Horizontal", 5))
sketch9.addConstraint(Sketcher.Constraint("Vertical", 6))
sketch9.addConstraint(Sketcher.Constraint("Horizontal", 7))
sketch9.addConstraint(Sketcher.Constraint("Equal", 3, 0))
sketch9.addConstraint(Sketcher.Constraint("Equal", 7, 4))
sketch9.addConstraint(Sketcher.Constraint("DistanceX", 1, 1, 1, 2, 96.0))
sketch9.addConstraint(Sketcher.Constraint("DistanceX", 5, 1, 5, 2, 92.5))
sketch9.addConstraint(Sketcher.Constraint("DistanceY", -1, 1, 4, 2, 1.25))
sketch9.addConstraint(Sketcher.Constraint("DistanceX", -1, 1, 5, 2, 1.25))
sketch9.addConstraint(Sketcher.Constraint("DistanceX", 3, 2, 4, 2, 1.75))
sketch9.addConstraint(Sketcher.Constraint("DistanceY", 4, 2, 3, 2, 1.75))
sketch9.setExpression("Constraints[18]", "Params.sketch9_width")
sketch9.setExpression("Constraints[19]", "Params.sketch9_width2")
pad7 = body.newObject("PartDesign::Pad", "Pad006")
pad7.Profile = sketch9
pad7.setExpression("Length", "Params.pad7_length")
pad7.Reversed = True

doc.recompute()
